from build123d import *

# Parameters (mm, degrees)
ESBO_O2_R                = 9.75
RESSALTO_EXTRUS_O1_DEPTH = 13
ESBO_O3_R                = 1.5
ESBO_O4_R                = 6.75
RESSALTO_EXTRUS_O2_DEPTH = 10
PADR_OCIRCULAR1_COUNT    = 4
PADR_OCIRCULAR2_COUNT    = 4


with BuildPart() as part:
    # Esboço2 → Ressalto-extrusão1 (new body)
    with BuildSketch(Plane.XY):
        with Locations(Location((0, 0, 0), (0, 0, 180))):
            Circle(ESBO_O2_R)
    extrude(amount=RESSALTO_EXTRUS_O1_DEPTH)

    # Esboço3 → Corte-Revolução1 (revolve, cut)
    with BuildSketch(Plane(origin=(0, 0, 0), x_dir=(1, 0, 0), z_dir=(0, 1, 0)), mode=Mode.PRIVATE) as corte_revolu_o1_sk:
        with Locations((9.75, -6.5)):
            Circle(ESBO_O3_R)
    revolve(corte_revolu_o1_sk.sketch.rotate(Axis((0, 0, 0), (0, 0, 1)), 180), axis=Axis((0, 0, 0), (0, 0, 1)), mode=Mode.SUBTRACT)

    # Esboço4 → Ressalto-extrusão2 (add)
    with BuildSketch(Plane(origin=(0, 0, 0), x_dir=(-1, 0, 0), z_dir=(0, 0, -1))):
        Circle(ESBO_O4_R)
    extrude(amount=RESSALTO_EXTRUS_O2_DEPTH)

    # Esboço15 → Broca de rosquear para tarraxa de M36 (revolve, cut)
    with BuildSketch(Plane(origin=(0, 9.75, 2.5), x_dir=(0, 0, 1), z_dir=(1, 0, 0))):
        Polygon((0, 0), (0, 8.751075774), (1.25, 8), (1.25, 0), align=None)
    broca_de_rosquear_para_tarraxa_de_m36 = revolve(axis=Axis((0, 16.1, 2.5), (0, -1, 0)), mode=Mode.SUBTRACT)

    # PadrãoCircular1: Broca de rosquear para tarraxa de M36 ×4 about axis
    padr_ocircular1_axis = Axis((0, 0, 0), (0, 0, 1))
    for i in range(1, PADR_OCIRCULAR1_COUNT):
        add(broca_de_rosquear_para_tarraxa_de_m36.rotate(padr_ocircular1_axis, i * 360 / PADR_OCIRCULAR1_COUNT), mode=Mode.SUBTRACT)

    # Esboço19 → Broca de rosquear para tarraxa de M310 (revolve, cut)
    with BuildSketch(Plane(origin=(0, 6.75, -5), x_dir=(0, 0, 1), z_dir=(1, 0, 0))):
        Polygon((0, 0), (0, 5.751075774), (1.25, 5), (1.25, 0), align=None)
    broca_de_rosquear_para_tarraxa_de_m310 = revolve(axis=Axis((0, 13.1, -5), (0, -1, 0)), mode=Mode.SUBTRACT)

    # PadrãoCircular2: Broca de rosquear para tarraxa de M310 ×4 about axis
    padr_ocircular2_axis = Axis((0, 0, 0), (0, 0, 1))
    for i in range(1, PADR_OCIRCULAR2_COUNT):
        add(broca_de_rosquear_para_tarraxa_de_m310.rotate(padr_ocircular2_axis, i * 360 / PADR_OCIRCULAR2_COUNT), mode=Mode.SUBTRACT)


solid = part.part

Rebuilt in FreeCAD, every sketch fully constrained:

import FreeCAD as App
import Part
import Sketcher
Q = App.Units.Quantity

doc = App.newDocument("Part")
body = doc.addObject("PartDesign::Body", "Body")

sketch1 = body.newObject("Sketcher::SketchObject", "Sketch")
sketch1.AttachmentSupport = (doc.getObject("XY_Plane"), [""])
sketch1.MapMode = "FlatFace"
sketch1.addGeometry(Part.Circle(App.Vector(0, 0, 0), App.Vector(0, 0, 1), 10), False)
sketch1.addConstraint([
    Sketcher.Constraint("Coincident", 0, 3, -1, 1),
    Sketcher.Constraint("Diameter", 0, 19.5),
])
pad1 = body.newObject("PartDesign::Pad", "Pad")
pad1.Profile = sketch1
pad1.Length = 13

sketch2 = body.newObject("Sketcher::SketchObject", "Sketch001")
sketch2.AttachmentSupport = (doc.getObject("XZ_Plane"), [""])
sketch2.MapMode = "FlatFace"
sketch2.addGeometry(Part.Circle(App.Vector(9.8, 6.5, 0), App.Vector(0, 0, 1), 1.5), False)
sketch2.addConstraint([
    Sketcher.Constraint("Diameter", 0, 3.0),
    Sketcher.Constraint("DistanceY", -1, 1, 0, 3, 6.5),
    Sketcher.Constraint("DistanceX", -1, 1, 0, 3, 9.75),
])
groove = body.newObject("PartDesign::Groove", "Groove")
groove.Profile = sketch2
groove.ReferenceAxis = (sketch2, ["V_Axis"])
groove.Angle = 360

sketch3 = body.newObject("Sketcher::SketchObject", "Sketch002")
sketch3.AttachmentSupport = (doc.getObject("XY_Plane"), [""])
sketch3.MapMode = "FlatFace"
sketch3.addGeometry(Part.Circle(App.Vector(0, 0, 0), App.Vector(0, 0, 1), 7), False)
sketch3.addConstraint([
    Sketcher.Constraint("Coincident", 0, 3, -1, 1),
    Sketcher.Constraint("Diameter", 0, 13.5),
])
pad2 = body.newObject("PartDesign::Pad", "Pad001")
pad2.Profile = sketch3
pad2.Length = 10
pad2.Reversed = True

sketch4 = body.newObject("Sketcher::SketchObject", "Sketch003")
sketch4.AttachmentSupport = (doc.getObject("YZ_Plane"), [""])
sketch4.MapMode = "FlatFace"
sketch4.addGeometry([
    Part.LineSegment(App.Vector(1, 2.5, 0), App.Vector(9.8, 2.5, 0)),
    Part.LineSegment(App.Vector(9.8, 2.5, 0), App.Vector(9.8, 3.8, 0)),
    Part.LineSegment(App.Vector(9.8, 3.8, 0), App.Vector(1.8, 3.8, 0)),
    Part.LineSegment(App.Vector(1.8, 3.8, 0), App.Vector(1, 2.5, 0)),
], False)
sketch4.addGeometry(Part.LineSegment(App.Vector(9.8, 2.5, 0), App.Vector(1, 2.5, 0)), True)
sketch4.addConstraint([
    Sketcher.Constraint("Coincident", 0, 2, 1, 1),
    Sketcher.Constraint("Coincident", 1, 2, 2, 1),
    Sketcher.Constraint("Coincident", 2, 2, 3, 1),
    Sketcher.Constraint("Coincident", 3, 2, 0, 1),
    Sketcher.Constraint("Horizontal", 0),
    Sketcher.Constraint("Vertical", 1),
    Sketcher.Constraint("Horizontal", 2),
    Sketcher.Constraint("Horizontal", 4),
    Sketcher.Constraint("Coincident", 4, 1, 0, 2),
    Sketcher.Constraint("Equal", 0, 4),
    Sketcher.Constraint("DistanceX", 2, 2, 2, 1, 8.0),
    Sketcher.Constraint("Angle", 3, Q("-121 deg")),
    Sketcher.Constraint("DistanceY", 1, 1, 1, 2, 1.25),
    Sketcher.Constraint("DistanceY", -1, 1, 0, 2, 2.5),
    Sketcher.Constraint("DistanceX", -1, 1, 0, 2, 9.75),
])
groove2 = body.newObject("PartDesign::Groove", "Groove001")
groove2.Profile = sketch4
groove2.ReferenceAxis = (sketch4, ["Axis0"])
groove2.Angle = 360
doc.recompute()

polarpattern = body.newObject("PartDesign::PolarPattern", "PolarPattern")
polarpattern.Originals = [groove2]
polarpattern.Axis = (doc.getObject("Z_Axis"), [""])
polarpattern.Angle = 360
polarpattern.Occurrences = 4
body.Tip = polarpattern

sketch5 = body.newObject("Sketcher::SketchObject", "Sketch004")
sketch5.AttachmentSupport = (doc.getObject("YZ_Plane"), [""])
sketch5.MapMode = "FlatFace"
sketch5.addGeometry([
    Part.LineSegment(App.Vector(1, -5, 0), App.Vector(6.8, -5, 0)),
    Part.LineSegment(App.Vector(6.8, -5, 0), App.Vector(6.8, -3.8, 0)),
    Part.LineSegment(App.Vector(6.8, -3.8, 0), App.Vector(1.8, -3.8, 0)),
    Part.LineSegment(App.Vector(1.8, -3.8, 0), App.Vector(1, -5, 0)),
], False)
sketch5.addGeometry(Part.LineSegment(App.Vector(6.8, -5, 0), App.Vector(1, -5, 0)), True)
sketch5.addConstraint([
    Sketcher.Constraint("Coincident", 0, 2, 1, 1),
    Sketcher.Constraint("Coincident", 1, 2, 2, 1),
    Sketcher.Constraint("Coincident", 2, 2, 3, 1),
    Sketcher.Constraint("Coincident", 3, 2, 0, 1),
    Sketcher.Constraint("Horizontal", 0),
    Sketcher.Constraint("Vertical", 1),
    Sketcher.Constraint("Horizontal", 2),
    Sketcher.Constraint("Horizontal", 4),
    Sketcher.Constraint("Coincident", 4, 1, 0, 2),
    Sketcher.Constraint("Equal", 0, 4),
    Sketcher.Constraint("DistanceX", 2, 2, 2, 1, 5.0),
    Sketcher.Constraint("Angle", 3, Q("-121 deg")),
    Sketcher.Constraint("DistanceY", 0, 2, -1, 1, 5.0),
    Sketcher.Constraint("DistanceY", 1, 1, 1, 2, 1.25),
    Sketcher.Constraint("DistanceX", -1, 1, 0, 2, 6.75),
])
groove3 = body.newObject("PartDesign::Groove", "Groove002")
groove3.Profile = sketch5
groove3.ReferenceAxis = (sketch5, ["Axis0"])
groove3.Angle = 360
doc.recompute()

polarpattern2 = body.newObject("PartDesign::PolarPattern", "PolarPattern001")
polarpattern2.Originals = [groove3]
polarpattern2.Axis = (doc.getObject("Z_Axis"), [""])
polarpattern2.Angle = 360
polarpattern2.Occurrences = 4
body.Tip = polarpattern2

doc.recompute()
